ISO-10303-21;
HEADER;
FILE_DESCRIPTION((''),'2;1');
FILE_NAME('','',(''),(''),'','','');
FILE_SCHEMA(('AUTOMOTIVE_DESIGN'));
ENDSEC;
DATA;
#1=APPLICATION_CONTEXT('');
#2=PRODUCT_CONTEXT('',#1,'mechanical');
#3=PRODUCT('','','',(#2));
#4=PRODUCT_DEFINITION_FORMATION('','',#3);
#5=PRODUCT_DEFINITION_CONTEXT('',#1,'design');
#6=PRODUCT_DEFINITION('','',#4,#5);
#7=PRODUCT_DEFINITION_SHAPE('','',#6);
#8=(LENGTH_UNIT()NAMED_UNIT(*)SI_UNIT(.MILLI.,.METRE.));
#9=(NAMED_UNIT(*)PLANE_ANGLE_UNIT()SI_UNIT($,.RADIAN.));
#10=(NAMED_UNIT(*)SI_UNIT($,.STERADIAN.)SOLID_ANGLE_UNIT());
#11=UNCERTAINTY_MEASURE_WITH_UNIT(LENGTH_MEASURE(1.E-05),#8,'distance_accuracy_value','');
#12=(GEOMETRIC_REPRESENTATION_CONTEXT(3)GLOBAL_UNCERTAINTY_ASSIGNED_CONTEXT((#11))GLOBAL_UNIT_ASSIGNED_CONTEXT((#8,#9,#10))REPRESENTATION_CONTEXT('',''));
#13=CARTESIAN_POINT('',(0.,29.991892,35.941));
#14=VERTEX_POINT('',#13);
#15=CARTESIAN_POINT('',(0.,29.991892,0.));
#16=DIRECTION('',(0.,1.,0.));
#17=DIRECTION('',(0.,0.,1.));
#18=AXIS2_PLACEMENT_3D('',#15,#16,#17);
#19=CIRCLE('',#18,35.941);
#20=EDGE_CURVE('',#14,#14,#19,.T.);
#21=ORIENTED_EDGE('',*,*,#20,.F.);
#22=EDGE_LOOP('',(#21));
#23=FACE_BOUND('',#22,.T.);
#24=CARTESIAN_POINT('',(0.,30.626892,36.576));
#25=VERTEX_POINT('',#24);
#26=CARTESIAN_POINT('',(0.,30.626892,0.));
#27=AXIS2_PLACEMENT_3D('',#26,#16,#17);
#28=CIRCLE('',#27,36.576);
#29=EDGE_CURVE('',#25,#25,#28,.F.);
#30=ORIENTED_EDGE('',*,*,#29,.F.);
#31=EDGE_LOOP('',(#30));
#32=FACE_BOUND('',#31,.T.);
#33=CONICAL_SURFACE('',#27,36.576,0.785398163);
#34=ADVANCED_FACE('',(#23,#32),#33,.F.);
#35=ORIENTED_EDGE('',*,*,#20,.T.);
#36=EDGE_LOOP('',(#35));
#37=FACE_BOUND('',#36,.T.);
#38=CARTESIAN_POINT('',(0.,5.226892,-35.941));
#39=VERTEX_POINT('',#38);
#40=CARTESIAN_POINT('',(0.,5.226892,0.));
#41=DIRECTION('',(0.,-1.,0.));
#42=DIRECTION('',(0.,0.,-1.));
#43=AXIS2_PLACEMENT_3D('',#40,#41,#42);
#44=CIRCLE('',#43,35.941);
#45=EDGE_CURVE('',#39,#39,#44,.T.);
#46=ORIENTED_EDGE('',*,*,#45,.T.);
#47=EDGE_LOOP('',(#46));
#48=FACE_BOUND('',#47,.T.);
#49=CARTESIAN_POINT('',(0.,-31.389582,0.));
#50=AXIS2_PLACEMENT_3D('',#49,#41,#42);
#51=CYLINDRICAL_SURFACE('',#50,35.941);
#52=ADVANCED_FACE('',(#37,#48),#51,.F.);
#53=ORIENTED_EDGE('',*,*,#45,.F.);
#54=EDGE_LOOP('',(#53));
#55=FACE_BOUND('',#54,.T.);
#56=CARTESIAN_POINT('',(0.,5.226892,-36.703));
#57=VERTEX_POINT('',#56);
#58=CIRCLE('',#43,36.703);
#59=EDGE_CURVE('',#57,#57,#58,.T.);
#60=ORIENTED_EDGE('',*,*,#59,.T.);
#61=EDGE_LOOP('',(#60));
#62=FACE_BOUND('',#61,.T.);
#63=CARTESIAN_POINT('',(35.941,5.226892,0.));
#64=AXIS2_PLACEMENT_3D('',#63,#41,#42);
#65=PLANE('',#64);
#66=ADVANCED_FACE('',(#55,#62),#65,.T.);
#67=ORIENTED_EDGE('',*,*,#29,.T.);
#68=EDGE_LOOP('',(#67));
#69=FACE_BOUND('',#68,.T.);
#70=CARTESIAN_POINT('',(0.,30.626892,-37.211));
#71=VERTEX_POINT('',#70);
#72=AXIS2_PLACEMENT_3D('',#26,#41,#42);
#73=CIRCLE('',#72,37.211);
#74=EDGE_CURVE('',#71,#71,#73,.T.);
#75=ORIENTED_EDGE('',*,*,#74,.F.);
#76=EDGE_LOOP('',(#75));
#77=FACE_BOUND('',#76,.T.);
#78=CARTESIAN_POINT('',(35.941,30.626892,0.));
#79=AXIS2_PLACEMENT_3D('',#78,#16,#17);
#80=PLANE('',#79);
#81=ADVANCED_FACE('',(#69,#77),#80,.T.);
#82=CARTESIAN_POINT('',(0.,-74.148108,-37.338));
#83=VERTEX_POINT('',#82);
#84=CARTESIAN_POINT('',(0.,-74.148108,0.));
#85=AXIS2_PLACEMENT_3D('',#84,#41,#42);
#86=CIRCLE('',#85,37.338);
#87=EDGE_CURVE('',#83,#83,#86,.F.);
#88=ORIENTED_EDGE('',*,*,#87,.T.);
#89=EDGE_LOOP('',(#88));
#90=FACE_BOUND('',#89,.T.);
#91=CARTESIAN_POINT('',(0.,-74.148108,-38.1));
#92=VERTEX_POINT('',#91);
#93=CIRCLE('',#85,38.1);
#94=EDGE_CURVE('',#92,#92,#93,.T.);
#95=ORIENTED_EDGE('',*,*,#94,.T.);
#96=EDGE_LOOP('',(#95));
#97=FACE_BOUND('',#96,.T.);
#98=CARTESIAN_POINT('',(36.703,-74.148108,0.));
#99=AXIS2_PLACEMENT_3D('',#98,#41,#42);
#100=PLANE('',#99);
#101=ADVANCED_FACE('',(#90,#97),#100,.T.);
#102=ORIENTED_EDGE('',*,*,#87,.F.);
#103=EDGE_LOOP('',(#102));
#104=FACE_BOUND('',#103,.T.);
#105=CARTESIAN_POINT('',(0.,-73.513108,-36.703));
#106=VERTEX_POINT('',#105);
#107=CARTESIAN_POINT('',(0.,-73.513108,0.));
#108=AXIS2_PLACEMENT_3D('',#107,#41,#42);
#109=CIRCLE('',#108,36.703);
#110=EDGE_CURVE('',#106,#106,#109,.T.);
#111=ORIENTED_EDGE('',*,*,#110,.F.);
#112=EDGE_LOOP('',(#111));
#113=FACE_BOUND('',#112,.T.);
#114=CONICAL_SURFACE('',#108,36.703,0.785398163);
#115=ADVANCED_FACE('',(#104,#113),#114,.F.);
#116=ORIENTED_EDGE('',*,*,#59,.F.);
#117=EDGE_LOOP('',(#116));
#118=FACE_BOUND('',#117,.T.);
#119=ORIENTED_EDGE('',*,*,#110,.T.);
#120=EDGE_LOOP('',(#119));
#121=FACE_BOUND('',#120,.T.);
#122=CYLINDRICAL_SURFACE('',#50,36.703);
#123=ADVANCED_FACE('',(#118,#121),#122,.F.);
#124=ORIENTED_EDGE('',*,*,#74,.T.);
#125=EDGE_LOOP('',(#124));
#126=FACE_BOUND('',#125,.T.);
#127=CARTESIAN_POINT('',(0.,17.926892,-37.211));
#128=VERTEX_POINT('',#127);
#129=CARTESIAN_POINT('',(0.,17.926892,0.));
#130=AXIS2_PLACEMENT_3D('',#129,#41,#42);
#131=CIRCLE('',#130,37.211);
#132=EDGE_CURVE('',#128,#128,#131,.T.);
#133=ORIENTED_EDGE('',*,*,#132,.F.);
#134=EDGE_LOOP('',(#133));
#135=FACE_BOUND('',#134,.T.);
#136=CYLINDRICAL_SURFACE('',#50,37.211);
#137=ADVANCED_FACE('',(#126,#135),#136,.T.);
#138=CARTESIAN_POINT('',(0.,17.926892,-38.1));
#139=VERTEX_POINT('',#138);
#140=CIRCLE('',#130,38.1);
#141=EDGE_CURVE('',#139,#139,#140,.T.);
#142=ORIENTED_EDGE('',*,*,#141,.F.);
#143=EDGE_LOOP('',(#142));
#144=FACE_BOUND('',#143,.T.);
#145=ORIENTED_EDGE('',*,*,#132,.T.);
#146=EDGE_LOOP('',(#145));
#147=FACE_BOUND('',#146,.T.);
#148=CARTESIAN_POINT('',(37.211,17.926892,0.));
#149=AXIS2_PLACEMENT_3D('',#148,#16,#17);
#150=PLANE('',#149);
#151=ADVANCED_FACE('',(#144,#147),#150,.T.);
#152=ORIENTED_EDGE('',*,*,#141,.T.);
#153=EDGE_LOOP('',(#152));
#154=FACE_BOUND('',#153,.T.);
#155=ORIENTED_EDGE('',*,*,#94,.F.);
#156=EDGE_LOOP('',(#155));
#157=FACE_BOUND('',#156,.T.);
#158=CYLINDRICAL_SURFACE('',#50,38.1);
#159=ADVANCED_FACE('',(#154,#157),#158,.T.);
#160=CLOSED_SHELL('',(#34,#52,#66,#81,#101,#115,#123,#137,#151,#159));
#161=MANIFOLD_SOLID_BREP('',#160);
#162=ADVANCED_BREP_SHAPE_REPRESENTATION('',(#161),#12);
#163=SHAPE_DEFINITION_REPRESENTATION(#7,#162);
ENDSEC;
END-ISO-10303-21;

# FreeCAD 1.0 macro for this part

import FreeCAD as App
import Part
import Sketcher
from FreeCAD import Vector
Q = App.Units.Quantity


def edges_at(feature, points):
    """Names of the edges that pass closest to the given points."""
    edges = feature.Shape.Edges
    near = lambda p: min(range(len(edges)), key=lambda i: edges[i].distToShape(Part.Vertex(*p))[0])
    return sorted({f"Edge{near(p) + 1}" for p in points})


def add_polygon(sketch, points):
    """Adds a closed chain of lines whose ends are joined by coincident constraints."""
    first, n = sketch.GeometryCount, len(points)
    for a, b in zip(points, points[1:] + points[:1]):
        sketch.addGeometry(Part.LineSegment(App.Vector(*a, 0), App.Vector(*b, 0)), False)
    for i in range(n):
        sketch.addConstraint(Sketcher.Constraint("Coincident", first + i, 2, first + (i + 1) % n, 1))

doc = App.newDocument("Part")
params = doc.addObject("Spreadsheet::Sheet", "Params")
for row, (alias, value) in enumerate([
    ("sketch1_height", "1 in"),
    ("sketch1_height2", "0.5 in"),
    ("sketch1_width", "0.03 in"),
    ("sketch1_width2", "0.05 in"),
    ("sketch1_width3", "0.055 in"),
    ("revolution_angle", "360 deg"),
    ("chamfer_size", "0.025 in"),
], start=1):
    params.set(f"A{row}", alias)
    params.set(f"B{row}", "=" + value)
    params.setAlias(f"B{row}", alias)

body = doc.addObject("PartDesign::Body", "Body")

# Sketch on XY plane
sketch1 = body.newObject("Sketcher::SketchObject", "Sketch")
sketch1.AttachmentSupport = (doc.getObject("XY_Plane"), [""])
sketch1.MapMode = "FlatFace"
add_polygon(sketch1, [(35.9, 30.6), (35.9, 5.2), (36.7, 5.2), (36.7, -74.1), (38.1, -74.1), (38.1, 17.9), (37.2, 17.9), (37.2, 30.6)])  # lines 0-7
sketch1.addConstraint([
    Sketcher.Constraint("Vertical", 0),
    Sketcher.Constraint("Horizontal", 1),
    Sketcher.Constraint("Vertical", 2),
    Sketcher.Constraint("Horizontal", 3),
    Sketcher.Constraint("Vertical", 4),
    Sketcher.Constraint("Horizontal", 5),
    Sketcher.Constraint("Vertical", 6),
    Sketcher.Constraint("Horizontal", 7),
    Sketcher.Constraint("DistanceY", 0, 2, 0, 1, Q("1 in")),
    Sketcher.Constraint("DistanceY", 6, 1, 6, 2, Q("0.5 in")),
    Sketcher.Constraint("DistanceX", 1, 1, 1, 2, Q("0.03 in")),
    Sketcher.Constraint("DistanceX", 7, 2, 7, 1, Q("0.05 in")),
    Sketcher.Constraint("DistanceX", -1, 1, 3, 2, Q("1.5 in")),
    Sketcher.Constraint("DistanceX", 3, 1, 3, 2, Q("0.055 in")),
    Sketcher.Constraint("DistanceY", 2, 2, 2, 1, Q("3.125 in")),
    Sketcher.Constraint("DistanceY", -1, 1, 0, 2, Q("5.226892 mm")),
])
sketch1.setExpression("Constraints[16]", "Params.sketch1_height")
sketch1.setExpression("Constraints[17]", "Params.sketch1_height2")
sketch1.setExpression("Constraints[18]", "Params.sketch1_width")
sketch1.setExpression("Constraints[19]", "Params.sketch1_width2")
sketch1.setExpression("Constraints[21]", "Params.sketch1_width3")
revolution = body.newObject("PartDesign::Revolution", "Revolution")
revolution.Profile = sketch1
revolution.ReferenceAxis = (sketch1, ["V_Axis"])
revolution.setExpression("Angle", "Params.revolution_angle")
doc.recompute()

chamfer = body.newObject("PartDesign::Chamfer", "Chamfer")
chamfer.Base = (revolution, edges_at(revolution, [(0, 30.627, 35.941), (0, -74.148, 36.703)]))
chamfer.setExpression("Size", "Params.chamfer_size")

doc.recompute()
